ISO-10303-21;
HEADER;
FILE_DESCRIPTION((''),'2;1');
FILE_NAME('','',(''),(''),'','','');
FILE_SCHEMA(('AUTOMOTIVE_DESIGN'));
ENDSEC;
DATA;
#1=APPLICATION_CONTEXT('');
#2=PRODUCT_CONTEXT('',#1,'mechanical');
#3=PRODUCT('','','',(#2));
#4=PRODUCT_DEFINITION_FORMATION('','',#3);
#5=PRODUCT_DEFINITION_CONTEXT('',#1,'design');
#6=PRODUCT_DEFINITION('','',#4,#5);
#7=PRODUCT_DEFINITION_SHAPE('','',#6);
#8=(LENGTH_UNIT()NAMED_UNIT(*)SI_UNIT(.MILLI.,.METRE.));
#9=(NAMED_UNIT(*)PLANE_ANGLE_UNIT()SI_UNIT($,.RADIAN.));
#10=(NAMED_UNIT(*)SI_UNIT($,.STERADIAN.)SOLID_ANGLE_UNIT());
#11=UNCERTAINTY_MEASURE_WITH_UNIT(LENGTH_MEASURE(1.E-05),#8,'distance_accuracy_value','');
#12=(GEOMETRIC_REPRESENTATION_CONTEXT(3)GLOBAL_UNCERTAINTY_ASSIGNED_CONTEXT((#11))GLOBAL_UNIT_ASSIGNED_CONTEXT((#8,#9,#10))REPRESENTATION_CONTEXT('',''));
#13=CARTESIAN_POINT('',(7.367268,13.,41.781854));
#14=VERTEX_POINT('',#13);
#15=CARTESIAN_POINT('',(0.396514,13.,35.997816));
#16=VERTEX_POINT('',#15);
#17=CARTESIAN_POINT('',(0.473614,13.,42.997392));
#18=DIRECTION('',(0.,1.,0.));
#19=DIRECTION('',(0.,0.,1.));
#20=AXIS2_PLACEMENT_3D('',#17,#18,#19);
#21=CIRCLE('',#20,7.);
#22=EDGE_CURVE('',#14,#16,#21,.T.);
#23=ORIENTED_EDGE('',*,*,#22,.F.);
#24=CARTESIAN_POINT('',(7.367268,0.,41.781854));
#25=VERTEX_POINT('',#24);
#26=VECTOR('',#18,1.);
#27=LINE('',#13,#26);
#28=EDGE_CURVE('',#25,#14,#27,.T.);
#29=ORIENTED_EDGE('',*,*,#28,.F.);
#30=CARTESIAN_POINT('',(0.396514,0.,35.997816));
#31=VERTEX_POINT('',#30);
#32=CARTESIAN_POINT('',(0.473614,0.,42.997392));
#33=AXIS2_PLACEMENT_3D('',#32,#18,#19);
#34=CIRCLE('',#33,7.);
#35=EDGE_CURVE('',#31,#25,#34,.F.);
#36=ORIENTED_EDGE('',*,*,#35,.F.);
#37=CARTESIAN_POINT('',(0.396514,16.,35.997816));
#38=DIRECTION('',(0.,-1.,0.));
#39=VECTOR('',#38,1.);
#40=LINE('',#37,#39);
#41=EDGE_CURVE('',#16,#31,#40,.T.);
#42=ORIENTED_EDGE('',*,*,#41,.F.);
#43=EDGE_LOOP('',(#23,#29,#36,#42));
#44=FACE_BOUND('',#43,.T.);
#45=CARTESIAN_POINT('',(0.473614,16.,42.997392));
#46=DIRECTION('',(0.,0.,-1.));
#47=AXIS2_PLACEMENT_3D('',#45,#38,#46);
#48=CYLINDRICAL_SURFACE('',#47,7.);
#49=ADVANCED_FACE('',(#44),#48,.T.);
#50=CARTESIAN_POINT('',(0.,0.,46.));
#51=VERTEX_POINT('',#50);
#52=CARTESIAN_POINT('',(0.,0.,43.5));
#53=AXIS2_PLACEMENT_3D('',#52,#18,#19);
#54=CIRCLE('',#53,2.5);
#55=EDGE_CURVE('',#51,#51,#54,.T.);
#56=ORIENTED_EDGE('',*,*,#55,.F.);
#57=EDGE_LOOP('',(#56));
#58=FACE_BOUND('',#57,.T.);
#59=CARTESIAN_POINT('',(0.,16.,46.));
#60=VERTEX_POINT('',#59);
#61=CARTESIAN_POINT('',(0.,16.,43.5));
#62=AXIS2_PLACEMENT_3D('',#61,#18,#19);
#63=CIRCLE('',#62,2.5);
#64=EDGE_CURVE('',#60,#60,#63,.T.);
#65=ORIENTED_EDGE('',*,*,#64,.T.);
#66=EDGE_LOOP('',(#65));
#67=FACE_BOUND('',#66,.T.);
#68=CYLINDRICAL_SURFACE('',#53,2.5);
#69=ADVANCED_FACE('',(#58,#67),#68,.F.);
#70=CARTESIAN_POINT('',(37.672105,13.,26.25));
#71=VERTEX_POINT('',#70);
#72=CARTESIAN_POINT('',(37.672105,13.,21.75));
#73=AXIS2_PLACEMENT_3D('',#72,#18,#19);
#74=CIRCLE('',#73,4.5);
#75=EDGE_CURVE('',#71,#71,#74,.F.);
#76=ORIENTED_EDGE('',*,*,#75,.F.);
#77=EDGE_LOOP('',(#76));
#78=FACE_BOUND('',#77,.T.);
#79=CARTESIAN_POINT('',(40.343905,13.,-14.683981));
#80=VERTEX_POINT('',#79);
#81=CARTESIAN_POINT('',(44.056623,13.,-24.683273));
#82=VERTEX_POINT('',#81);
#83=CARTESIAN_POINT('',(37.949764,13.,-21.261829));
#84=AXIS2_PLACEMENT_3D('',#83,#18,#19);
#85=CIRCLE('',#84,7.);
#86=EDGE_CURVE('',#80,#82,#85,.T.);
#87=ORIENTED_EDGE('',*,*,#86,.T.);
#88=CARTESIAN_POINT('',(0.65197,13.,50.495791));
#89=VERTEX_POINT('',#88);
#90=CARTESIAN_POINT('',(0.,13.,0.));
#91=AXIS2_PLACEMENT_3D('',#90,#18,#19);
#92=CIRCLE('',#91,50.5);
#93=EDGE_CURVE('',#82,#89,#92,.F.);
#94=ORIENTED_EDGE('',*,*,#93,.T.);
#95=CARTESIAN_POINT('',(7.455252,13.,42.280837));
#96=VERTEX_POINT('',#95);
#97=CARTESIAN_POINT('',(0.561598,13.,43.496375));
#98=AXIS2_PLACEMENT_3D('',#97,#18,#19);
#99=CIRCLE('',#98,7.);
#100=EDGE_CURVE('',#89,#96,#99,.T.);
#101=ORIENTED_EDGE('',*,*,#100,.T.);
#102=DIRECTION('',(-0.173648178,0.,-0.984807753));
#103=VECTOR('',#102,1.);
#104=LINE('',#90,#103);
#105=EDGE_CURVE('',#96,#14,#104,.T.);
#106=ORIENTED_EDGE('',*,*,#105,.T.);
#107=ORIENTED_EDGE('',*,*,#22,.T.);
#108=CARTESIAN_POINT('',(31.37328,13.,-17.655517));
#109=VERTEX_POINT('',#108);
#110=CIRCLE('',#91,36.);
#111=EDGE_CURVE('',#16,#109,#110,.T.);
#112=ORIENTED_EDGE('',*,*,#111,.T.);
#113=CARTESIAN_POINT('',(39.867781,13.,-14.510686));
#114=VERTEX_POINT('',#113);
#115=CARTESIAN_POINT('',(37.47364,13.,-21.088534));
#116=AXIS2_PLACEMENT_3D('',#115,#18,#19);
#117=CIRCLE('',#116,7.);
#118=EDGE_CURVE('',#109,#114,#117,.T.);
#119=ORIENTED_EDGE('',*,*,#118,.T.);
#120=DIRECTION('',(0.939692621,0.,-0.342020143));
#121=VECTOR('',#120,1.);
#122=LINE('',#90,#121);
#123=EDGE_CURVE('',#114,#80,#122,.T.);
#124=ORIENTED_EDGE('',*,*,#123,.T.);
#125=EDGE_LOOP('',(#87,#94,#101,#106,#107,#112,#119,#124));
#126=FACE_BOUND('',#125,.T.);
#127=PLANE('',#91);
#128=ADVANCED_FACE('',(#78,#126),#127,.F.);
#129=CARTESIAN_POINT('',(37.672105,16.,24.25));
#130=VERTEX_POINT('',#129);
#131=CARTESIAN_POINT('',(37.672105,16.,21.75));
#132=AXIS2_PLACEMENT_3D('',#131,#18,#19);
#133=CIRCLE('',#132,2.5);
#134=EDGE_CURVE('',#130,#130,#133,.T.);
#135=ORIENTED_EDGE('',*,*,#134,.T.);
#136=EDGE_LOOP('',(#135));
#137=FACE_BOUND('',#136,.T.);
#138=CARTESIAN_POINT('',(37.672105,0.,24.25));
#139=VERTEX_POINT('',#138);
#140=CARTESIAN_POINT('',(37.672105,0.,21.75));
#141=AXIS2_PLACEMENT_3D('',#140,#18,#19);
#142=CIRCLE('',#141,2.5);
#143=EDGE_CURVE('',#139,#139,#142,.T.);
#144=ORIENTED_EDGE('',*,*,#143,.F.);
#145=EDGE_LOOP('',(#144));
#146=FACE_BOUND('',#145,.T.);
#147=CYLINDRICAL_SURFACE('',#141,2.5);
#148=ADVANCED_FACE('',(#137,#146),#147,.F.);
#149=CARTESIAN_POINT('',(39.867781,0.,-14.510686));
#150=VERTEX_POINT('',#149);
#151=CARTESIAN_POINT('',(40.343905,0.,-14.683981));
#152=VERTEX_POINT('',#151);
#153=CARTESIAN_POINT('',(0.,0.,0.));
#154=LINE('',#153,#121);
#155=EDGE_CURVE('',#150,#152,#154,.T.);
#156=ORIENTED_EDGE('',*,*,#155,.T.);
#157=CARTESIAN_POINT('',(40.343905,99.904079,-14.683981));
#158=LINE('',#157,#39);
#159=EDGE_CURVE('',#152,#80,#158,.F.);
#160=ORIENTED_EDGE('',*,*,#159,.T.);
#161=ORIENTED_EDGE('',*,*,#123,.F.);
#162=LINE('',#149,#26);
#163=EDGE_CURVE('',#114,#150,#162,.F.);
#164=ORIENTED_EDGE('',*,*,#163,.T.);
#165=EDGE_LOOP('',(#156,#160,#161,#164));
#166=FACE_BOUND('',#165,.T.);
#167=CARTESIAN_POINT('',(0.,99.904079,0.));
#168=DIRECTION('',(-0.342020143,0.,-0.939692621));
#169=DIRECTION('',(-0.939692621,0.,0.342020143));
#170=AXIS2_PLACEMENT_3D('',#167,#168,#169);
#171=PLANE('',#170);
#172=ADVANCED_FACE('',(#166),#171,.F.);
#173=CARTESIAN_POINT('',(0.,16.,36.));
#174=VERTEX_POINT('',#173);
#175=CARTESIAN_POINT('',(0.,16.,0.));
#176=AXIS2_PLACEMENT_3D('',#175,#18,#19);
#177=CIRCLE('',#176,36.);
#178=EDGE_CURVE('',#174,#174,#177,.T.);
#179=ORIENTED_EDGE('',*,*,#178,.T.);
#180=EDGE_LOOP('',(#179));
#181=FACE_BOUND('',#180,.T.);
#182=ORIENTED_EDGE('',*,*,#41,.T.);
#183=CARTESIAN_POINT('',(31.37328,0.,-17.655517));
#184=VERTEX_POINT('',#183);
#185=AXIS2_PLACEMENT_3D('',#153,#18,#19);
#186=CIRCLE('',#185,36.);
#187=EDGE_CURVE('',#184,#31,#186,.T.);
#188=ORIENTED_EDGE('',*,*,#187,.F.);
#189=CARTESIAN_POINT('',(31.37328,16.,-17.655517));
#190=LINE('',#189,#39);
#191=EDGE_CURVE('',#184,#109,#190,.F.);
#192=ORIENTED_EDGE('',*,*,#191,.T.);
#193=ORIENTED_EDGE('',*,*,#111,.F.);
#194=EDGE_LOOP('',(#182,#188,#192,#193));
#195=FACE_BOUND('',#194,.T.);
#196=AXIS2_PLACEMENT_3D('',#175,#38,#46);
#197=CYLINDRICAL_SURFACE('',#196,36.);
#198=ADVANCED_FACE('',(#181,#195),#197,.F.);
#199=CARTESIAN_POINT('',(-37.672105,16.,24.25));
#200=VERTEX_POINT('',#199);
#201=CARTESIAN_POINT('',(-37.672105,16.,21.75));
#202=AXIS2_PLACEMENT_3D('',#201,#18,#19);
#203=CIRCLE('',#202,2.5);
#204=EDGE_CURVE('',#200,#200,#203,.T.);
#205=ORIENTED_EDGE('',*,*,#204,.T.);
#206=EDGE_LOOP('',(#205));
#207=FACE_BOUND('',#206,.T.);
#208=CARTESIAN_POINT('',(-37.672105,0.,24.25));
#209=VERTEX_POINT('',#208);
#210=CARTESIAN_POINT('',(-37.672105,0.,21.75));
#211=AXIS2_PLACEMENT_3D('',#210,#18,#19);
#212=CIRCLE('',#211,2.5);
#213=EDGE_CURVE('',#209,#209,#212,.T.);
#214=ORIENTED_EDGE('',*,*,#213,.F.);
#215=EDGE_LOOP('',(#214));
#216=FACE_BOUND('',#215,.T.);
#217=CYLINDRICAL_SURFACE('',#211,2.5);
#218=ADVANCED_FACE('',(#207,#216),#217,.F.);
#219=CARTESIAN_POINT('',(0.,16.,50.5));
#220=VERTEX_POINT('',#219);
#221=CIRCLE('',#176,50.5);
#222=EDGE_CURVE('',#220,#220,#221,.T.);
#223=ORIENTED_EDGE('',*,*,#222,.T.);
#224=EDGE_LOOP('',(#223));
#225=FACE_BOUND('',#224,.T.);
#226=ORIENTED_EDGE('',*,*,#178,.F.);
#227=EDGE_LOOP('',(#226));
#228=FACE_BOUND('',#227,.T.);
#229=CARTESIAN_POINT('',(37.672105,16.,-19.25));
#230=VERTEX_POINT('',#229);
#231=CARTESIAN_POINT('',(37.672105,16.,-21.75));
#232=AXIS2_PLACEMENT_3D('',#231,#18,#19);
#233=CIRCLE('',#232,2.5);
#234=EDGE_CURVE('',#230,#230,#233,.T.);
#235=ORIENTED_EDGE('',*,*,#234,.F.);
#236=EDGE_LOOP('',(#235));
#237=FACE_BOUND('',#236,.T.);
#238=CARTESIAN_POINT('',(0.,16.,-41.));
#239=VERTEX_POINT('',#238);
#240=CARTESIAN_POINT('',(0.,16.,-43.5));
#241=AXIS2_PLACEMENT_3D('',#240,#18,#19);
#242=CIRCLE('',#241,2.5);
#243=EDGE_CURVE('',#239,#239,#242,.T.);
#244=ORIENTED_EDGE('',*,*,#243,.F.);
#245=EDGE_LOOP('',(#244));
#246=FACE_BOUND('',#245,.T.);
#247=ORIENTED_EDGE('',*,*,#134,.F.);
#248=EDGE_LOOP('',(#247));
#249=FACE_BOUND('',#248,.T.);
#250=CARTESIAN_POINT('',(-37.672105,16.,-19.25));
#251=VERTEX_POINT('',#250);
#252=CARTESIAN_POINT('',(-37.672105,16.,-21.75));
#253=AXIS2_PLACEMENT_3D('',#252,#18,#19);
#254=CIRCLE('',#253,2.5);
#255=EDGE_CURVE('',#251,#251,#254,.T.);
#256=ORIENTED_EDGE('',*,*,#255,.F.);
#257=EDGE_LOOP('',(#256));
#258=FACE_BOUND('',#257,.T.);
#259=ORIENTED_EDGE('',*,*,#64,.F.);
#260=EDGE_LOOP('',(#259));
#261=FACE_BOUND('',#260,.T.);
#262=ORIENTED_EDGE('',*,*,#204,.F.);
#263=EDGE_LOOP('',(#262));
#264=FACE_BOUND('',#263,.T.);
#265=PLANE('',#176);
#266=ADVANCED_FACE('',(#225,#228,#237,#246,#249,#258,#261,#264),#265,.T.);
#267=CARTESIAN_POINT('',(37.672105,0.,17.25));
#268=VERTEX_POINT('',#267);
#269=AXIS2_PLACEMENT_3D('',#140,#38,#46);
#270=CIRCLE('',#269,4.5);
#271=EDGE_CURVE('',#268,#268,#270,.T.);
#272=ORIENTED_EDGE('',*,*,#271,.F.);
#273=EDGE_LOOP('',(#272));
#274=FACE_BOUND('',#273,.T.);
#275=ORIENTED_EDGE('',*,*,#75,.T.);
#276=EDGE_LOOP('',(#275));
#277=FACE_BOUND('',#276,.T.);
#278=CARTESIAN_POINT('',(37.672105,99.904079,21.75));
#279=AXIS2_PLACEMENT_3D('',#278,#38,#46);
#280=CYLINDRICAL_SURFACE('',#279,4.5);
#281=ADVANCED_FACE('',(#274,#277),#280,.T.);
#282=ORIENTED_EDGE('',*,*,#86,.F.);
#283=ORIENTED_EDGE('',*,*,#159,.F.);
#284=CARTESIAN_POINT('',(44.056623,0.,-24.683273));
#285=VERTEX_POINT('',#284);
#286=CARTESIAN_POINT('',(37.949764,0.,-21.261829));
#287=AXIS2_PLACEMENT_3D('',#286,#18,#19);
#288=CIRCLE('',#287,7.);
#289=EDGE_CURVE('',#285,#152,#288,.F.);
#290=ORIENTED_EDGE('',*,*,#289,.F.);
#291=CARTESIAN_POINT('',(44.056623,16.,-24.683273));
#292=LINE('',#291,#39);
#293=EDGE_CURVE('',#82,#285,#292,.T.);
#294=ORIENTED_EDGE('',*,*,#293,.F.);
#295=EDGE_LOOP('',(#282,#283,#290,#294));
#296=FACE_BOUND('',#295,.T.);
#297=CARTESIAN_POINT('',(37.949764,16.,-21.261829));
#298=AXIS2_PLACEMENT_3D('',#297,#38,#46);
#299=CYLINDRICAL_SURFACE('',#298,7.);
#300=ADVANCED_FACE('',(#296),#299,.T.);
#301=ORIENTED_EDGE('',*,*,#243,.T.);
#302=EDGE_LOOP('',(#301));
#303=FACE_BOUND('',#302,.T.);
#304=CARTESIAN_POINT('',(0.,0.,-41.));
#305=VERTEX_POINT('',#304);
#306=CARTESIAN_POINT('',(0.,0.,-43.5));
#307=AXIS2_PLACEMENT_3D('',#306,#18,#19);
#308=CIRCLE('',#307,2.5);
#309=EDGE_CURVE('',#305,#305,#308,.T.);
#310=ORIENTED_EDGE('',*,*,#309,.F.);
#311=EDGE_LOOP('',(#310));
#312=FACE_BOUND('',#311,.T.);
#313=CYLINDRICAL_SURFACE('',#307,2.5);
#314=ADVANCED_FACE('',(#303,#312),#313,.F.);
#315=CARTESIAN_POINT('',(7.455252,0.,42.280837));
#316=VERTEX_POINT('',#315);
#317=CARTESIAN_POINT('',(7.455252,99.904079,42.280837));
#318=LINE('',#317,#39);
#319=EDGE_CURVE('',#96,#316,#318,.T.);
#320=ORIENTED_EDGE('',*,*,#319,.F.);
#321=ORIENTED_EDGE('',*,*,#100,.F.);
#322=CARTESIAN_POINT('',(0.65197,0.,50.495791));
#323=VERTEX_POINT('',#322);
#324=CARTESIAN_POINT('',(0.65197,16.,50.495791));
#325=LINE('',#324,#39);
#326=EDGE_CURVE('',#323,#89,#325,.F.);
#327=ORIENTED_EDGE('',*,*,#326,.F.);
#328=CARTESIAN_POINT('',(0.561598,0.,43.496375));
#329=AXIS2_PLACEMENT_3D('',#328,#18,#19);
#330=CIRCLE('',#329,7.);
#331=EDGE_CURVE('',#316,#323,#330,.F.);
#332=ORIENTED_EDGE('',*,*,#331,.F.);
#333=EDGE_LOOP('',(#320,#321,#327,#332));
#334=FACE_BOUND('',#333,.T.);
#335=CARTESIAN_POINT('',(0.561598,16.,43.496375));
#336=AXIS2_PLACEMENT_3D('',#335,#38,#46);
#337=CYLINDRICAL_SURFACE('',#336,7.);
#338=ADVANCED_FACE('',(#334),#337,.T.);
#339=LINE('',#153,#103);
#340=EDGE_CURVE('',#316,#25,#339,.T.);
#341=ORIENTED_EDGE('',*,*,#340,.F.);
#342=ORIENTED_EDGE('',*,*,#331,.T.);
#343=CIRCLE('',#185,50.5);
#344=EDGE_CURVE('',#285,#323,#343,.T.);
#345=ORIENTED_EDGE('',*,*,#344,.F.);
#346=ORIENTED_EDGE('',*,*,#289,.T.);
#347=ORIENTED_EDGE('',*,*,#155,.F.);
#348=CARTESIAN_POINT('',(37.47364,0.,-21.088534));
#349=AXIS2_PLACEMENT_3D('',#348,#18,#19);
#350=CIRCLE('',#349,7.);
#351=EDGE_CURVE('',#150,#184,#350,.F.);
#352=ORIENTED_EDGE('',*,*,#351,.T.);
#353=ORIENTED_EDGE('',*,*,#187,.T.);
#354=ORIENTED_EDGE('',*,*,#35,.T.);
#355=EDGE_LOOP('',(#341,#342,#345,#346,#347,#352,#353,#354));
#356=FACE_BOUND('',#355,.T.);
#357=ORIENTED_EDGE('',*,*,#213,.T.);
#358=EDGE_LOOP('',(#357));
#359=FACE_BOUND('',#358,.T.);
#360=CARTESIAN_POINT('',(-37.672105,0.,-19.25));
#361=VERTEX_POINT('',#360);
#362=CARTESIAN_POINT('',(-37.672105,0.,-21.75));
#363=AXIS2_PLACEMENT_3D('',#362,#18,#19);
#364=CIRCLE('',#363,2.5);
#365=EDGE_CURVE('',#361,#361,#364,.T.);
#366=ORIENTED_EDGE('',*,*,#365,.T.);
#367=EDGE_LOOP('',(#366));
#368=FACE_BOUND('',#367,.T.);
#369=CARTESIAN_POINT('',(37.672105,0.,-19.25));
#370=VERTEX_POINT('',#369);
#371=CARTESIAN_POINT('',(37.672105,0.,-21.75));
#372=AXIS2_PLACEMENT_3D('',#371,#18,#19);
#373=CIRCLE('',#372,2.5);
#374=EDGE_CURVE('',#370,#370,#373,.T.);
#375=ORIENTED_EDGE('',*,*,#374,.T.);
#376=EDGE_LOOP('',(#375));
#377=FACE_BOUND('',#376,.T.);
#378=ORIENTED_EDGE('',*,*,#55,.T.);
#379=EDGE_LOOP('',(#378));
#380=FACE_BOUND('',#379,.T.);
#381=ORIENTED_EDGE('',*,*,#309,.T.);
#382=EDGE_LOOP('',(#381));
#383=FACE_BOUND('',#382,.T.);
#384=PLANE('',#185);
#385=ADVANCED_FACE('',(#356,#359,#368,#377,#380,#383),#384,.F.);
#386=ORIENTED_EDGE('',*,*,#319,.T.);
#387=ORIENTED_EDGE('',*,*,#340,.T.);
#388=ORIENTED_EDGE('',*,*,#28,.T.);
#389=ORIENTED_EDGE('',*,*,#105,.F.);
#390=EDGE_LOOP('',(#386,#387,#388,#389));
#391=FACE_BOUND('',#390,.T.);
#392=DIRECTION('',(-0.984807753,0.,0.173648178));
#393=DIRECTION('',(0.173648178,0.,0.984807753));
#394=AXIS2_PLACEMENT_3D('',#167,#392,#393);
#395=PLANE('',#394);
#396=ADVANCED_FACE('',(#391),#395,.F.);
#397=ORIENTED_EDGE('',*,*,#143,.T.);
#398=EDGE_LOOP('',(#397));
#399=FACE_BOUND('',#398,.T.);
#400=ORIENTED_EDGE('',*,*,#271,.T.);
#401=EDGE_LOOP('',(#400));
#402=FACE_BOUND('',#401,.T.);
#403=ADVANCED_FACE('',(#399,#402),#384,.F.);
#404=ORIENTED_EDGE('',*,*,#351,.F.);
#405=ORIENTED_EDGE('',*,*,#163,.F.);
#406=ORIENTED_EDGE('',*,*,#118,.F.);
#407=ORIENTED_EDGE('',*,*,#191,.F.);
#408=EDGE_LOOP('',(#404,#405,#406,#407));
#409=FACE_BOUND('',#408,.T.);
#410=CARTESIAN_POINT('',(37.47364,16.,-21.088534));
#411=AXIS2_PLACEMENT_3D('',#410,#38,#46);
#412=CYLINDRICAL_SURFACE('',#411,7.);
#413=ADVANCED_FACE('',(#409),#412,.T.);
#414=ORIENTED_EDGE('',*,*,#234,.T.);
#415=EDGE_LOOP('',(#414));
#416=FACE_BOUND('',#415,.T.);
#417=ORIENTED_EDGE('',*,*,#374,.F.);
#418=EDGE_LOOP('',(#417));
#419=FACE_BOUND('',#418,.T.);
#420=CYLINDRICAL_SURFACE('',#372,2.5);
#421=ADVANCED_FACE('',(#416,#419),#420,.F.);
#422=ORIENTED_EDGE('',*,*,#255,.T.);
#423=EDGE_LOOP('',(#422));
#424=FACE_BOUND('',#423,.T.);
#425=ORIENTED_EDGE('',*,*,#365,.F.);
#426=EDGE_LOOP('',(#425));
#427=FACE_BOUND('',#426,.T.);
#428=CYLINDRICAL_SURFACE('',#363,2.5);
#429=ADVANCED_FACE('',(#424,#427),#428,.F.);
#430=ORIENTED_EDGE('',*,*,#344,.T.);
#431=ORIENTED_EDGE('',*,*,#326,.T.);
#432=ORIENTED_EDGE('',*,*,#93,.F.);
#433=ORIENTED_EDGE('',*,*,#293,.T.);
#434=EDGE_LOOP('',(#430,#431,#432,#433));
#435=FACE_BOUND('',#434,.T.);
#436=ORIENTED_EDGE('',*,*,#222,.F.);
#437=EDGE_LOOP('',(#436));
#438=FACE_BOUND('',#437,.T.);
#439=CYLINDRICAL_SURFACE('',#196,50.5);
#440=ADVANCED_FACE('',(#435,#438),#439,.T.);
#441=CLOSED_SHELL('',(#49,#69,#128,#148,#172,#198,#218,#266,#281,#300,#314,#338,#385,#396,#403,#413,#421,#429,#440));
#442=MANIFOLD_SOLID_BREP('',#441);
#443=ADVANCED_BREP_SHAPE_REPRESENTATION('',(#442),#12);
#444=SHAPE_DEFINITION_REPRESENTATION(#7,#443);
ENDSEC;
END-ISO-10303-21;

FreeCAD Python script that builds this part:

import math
import FreeCAD as App
import Part
import Sketcher
from FreeCAD import Vector
Q = App.Units.Quantity


def edges_at(feature, points):
    """Names of the edges that pass closest to the given points."""
    edges = feature.Shape.Edges
    near = lambda p: min(range(len(edges)), key=lambda i: edges[i].distToShape(Part.Vertex(*p))[0])
    return sorted({f"Edge{near(p) + 1}" for p in points})

doc = App.newDocument("Part")
body = doc.addObject("PartDesign::Body", "Body")

sketch1 = doc.addObject("Sketcher::SketchObject", "Sketch")
body.addObject(sketch1)
sketch1.AttachmentSupport = (doc.XZ_Plane, [""])
sketch1.MapMode = "FlatFace"
sketch1.addGeometry(Part.Circle(Vector(0, 0, 0), Vector(0, 0, 1), 50), False)
sketch1.addGeometry(Part.Circle(Vector(0, 0, 0), Vector(0, 0, 1), 36), False)
sketch1.addConstraint(Sketcher.Constraint("Coincident", 0, 3, -1, 1))
sketch1.addConstraint(Sketcher.Constraint("Coincident", 1, 3, -1, 1))
sketch1.addConstraint(Sketcher.Constraint("Diameter", 0, Q("101 mm")))
sketch1.addConstraint(Sketcher.Constraint("Diameter", 1, Q("72 mm")))
pad1 = doc.addObject("PartDesign::Pad", "Pad")
body.addObject(pad1)
pad1.Profile = sketch1
pad1.Length = 16
pad1.Reversed = True

sketch2 = doc.addObject("Sketcher::SketchObject", "Sketch001")
body.addObject(sketch2)
sketch2.AttachmentSupport = (doc.XZ_Plane, [""])
sketch2.MapMode = "FlatFace"
sketch2.AttachmentOffset = App.Placement(Vector(0, 0, -16), App.Rotation())
sketch2.addGeometry(Part.Circle(Vector(0, -43.5, 0), Vector(0, 0, 1), 2.5), False)
sketch2.addGeometry(Part.Circle(Vector(37.7, -21.8, 0), Vector(0, 0, 1), 2.5), False)
sketch2.addGeometry(Part.Circle(Vector(37.7, 21.8, 0), Vector(0, 0, 1), 2.5), False)
sketch2.addGeometry(Part.Circle(Vector(0, 43.5, 0), Vector(0, 0, 1), 2.5), False)
sketch2.addGeometry(Part.Circle(Vector(-37.7, 21.8, 0), Vector(0, 0, 1), 2.5), False)
sketch2.addGeometry(Part.Circle(Vector(-37.7, -21.8, 0), Vector(0, 0, 1), 2.5), False)
sketch2.addConstraint(Sketcher.Constraint("Equal", 0, 1))
sketch2.addConstraint(Sketcher.Constraint("Equal", 1, 2))
sketch2.addConstraint(Sketcher.Constraint("Equal", 2, 3))
sketch2.addConstraint(Sketcher.Constraint("Equal", 3, 4))
sketch2.addConstraint(Sketcher.Constraint("Equal", 4, 5))
sketch2.addConstraint(Sketcher.Constraint("Symmetric", 0, 3, 3, 3, -1, 1))
sketch2.addConstraint(Sketcher.Constraint("Symmetric", 1, 3, 4, 3, -1, 1))
sketch2.addConstraint(Sketcher.Constraint("Symmetric", 2, 3, 5, 3, -1, 1))
sketch2.addConstraint(Sketcher.Constraint("Symmetric", 2, 3, 4, 3, -2))
sketch2.addConstraint(Sketcher.Constraint("PointOnObject", 0, 3, -2))
sketch2.addConstraint(Sketcher.Constraint("Diameter", 0, Q("5 mm")))
sketch2.addConstraint(Sketcher.Constraint("DistanceY", 0, 3, 3, 3, Q("87 mm")))
sketch2.addConstraint(Sketcher.Constraint("DistanceY", 1, 3, 2, 3, Q("43.5 mm")))
sketch2.addConstraint(Sketcher.Constraint("DistanceX", 4, 3, 2, 3, Q("75.34421 mm")))
pocket1 = doc.addObject("PartDesign::Pocket", "Pocket")
body.addObject(pocket1)
pocket1.Profile = sketch2
pocket1.Type = "ThroughAll"
pocket1.Reversed = True

sketch3 = doc.addObject("Sketcher::SketchObject", "Sketch002")
body.addObject(sketch3)
sketch3.AttachmentSupport = (doc.XZ_Plane, [""])
sketch3.MapMode = "FlatFace"
sketch3.addGeometry(Part.LineSegment(Vector(8.8, 49.7, 0), Vector(0, 0, 0)), False)
sketch3.addGeometry(Part.LineSegment(Vector(0, 0, 0), Vector(47.5, -17.3, 0)), False)
sketch3.addGeometry(Part.ArcOfCircle(Part.Circle(Vector(0, 0, 0), Vector(0, 0, 1), 50.5), math.radians(-20), math.radians(80)), False)
sketch3.addGeometry(Part.Circle(Vector(37.7, 21.8, 0), Vector(0, 0, 1), 4.5), False)
sketch3.addConstraint(Sketcher.Constraint("Coincident", 0, 2, 1, 1))
sketch3.addConstraint(Sketcher.Constraint("Coincident", 1, 2, 2, 1))
sketch3.addConstraint(Sketcher.Constraint("Coincident", 2, 2, 0, 1))
sketch3.addConstraint(Sketcher.Constraint("Coincident", 2, 3, -1, 1))
sketch3.addConstraint(Sketcher.Constraint("Coincident", 0, 2, -1, 1))
sketch3.addConstraint(Sketcher.Constraint("Diameter", 3, Q("9 mm")))
sketch3.addConstraint(Sketcher.Constraint("Radius", 2, Q("50.5 mm")))
sketch3.addConstraint(Sketcher.Constraint("Angle", 0, Q("-100 deg")))
sketch3.addConstraint(Sketcher.Constraint("Angle", 1, Q("-20 deg")))
sketch3.addConstraint(Sketcher.Constraint("DistanceY", -1, 1, 3, 3, Q("21.75 mm")))
sketch3.addConstraint(Sketcher.Constraint("DistanceX", -1, 1, 3, 3, Q("37.672105 mm")))
pocket2 = doc.addObject("PartDesign::Pocket", "Pocket001")
body.addObject(pocket2)
pocket2.Profile = sketch3
pocket2.Length = 13
doc.recompute()

fillet = doc.addObject("PartDesign::Fillet", "Fillet")
body.addObject(fillet)
fillet.Base = (pocket2, edges_at(pocket2, [
    (6.251, 6.5, 35.453),
    (33.829, 6.5, -12.313),
    (47.454, 6.5, -17.272),
    (8.769, 6.5, 49.733),
]))
fillet.Radius = 7

doc.recompute()
